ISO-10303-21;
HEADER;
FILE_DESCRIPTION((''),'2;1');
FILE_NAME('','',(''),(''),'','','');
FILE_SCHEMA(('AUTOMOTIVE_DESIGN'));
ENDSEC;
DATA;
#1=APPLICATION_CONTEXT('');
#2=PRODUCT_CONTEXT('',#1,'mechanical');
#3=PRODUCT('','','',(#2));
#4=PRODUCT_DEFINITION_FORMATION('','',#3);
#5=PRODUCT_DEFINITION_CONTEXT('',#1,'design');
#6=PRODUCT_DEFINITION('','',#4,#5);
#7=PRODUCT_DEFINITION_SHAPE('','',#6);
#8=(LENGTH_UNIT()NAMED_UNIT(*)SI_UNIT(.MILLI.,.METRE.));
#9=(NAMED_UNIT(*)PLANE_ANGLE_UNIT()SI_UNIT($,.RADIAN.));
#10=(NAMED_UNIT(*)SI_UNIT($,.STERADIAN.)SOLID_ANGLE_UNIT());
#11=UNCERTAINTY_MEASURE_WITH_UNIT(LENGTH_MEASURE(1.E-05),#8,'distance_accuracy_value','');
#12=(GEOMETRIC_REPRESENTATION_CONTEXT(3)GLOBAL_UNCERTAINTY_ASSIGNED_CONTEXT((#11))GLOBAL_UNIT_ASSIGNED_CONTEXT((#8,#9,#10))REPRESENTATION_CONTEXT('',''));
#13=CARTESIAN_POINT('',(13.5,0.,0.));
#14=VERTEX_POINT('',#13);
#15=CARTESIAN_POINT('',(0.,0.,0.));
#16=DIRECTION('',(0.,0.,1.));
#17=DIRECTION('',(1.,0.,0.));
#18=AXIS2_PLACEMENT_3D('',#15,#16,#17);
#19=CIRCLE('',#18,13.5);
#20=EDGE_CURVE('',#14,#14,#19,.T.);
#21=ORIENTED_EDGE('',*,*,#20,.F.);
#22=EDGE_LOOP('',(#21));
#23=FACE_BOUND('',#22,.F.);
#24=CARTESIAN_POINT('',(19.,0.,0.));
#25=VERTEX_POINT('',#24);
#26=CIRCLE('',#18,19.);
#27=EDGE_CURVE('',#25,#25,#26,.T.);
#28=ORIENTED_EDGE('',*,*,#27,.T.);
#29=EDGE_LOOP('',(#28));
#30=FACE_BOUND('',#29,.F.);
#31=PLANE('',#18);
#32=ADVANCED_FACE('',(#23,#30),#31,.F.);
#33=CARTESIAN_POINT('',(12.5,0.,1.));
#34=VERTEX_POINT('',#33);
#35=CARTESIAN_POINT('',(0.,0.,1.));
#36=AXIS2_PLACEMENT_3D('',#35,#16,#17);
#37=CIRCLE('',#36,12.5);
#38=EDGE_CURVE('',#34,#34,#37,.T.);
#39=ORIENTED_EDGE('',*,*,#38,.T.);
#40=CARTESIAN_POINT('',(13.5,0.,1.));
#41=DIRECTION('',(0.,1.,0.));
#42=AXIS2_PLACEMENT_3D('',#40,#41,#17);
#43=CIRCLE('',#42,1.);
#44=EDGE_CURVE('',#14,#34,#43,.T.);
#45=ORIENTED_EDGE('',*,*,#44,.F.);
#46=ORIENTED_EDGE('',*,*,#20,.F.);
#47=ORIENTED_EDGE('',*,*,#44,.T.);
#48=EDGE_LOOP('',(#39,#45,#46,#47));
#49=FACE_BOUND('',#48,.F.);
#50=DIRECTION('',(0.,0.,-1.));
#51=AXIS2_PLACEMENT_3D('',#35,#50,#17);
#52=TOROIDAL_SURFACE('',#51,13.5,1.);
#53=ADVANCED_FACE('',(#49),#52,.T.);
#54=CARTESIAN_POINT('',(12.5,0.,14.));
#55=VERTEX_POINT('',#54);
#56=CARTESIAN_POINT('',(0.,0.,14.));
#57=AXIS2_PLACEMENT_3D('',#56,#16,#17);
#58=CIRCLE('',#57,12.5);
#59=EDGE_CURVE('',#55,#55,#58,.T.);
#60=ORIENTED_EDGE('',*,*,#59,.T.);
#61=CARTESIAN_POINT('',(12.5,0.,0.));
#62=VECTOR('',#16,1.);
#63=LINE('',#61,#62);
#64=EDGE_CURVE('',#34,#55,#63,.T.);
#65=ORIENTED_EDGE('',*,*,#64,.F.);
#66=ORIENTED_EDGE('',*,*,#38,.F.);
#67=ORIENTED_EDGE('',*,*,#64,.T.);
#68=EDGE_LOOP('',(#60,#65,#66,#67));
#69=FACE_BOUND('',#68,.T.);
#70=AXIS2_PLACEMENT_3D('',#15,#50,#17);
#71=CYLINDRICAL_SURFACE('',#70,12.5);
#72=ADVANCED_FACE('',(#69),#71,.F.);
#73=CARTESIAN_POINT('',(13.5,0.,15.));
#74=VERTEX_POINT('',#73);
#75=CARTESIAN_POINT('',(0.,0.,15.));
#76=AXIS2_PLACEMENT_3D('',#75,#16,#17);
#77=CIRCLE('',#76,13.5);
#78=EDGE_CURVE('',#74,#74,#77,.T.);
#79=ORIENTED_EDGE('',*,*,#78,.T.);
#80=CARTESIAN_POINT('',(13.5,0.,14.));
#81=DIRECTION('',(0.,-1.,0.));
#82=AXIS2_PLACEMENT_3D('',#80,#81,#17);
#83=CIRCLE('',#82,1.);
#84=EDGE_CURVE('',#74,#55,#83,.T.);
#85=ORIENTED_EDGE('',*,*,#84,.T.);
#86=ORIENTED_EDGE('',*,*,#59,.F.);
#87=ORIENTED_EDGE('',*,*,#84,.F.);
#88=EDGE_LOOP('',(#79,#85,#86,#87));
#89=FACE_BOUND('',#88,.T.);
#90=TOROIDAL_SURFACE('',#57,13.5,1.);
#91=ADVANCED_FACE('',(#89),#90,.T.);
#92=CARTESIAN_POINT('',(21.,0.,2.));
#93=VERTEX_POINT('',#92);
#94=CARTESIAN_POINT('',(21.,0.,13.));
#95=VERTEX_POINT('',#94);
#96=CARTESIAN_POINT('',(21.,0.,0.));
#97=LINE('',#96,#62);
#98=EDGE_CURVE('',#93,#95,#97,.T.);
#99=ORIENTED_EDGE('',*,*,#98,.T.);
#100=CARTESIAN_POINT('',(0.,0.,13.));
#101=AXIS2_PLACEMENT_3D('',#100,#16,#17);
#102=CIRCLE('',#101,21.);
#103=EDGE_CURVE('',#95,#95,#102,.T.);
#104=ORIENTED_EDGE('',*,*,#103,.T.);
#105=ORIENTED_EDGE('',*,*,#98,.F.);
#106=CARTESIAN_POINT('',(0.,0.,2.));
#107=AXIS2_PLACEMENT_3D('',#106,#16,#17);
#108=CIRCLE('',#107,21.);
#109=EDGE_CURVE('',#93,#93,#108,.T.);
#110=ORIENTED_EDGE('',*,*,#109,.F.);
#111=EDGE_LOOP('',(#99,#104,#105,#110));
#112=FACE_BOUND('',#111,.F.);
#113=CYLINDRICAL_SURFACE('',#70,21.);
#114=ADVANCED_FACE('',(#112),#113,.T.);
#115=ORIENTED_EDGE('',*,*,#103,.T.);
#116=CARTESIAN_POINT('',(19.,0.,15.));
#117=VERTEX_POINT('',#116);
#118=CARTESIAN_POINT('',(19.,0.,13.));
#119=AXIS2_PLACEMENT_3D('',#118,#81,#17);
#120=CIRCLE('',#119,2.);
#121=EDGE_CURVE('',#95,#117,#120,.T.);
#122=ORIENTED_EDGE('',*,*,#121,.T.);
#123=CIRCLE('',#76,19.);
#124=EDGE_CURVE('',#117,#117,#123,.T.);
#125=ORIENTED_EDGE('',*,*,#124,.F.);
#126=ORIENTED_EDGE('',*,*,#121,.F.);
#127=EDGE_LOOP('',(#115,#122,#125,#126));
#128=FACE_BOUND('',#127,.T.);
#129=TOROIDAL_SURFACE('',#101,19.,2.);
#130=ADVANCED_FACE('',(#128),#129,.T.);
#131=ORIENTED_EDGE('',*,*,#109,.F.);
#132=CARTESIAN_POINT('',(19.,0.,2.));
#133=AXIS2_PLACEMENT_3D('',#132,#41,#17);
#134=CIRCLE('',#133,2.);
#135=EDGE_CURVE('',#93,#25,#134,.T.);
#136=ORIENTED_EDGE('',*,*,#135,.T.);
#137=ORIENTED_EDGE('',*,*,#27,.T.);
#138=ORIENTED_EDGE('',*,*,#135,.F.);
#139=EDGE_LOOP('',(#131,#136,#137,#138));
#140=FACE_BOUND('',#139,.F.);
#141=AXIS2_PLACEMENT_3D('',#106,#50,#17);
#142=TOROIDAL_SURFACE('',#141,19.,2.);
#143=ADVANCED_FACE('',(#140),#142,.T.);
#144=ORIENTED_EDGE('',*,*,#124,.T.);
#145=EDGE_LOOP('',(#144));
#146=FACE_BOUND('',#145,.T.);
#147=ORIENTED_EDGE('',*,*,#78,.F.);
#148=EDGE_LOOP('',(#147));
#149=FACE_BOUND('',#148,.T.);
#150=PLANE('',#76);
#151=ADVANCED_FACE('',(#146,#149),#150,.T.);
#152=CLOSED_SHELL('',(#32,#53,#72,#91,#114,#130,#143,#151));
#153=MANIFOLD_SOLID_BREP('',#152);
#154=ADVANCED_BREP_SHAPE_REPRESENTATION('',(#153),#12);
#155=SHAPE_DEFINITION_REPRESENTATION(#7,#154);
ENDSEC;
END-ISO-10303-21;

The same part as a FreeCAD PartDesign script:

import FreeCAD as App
import Part
import Sketcher
from FreeCAD import Vector


def edges_at(feature, points):
    """Names of the edges that pass closest to the given points."""
    edges = feature.Shape.Edges
    near = lambda p: min(range(len(edges)), key=lambda i: edges[i].distToShape(Part.Vertex(*p))[0])
    return sorted({f"Edge{near(p) + 1}" for p in points})

doc = App.newDocument("Part")
body = doc.addObject("PartDesign::Body", "Body")

# Sketch on XY plane
sketch1 = body.newObject("Sketcher::SketchObject", "Sketch")
sketch1.AttachmentSupport = (doc.getObject("XY_Plane"), [""])
sketch1.MapMode = "FlatFace"
sketch1.addGeometry([
    Part.Circle(Vector(0, 0, 0), Vector(0, 0, 1), 21),
    Part.Circle(Vector(0, 0, 0), Vector(0, 0, 1), 12.5),
], False)
sketch1.addConstraint([
    Sketcher.Constraint("Coincident", 0, 3, -1, 1),
    Sketcher.Constraint("Coincident", 1, 3, -1, 1),
    Sketcher.Constraint("Diameter", 0, 42.0),
    Sketcher.Constraint("Diameter", 1, 25.0),
])
pad1 = body.newObject("PartDesign::Pad", "Pad")
pad1.Profile = sketch1
pad1.Length = 15
doc.recompute()

fillet = body.newObject("PartDesign::Fillet", "Fillet")
fillet.Base = (pad1, edges_at(pad1, [(-21, 0, 15), (-21, 0, 0)]))
fillet.Radius = 2
doc.recompute()

fillet2 = body.newObject("PartDesign::Fillet", "Fillet001")
fillet2.Base = (fillet, edges_at(fillet, [(-12.5, 0, 0), (-12.5, 0, 15)]))
fillet2.Radius = 1

doc.recompute()
